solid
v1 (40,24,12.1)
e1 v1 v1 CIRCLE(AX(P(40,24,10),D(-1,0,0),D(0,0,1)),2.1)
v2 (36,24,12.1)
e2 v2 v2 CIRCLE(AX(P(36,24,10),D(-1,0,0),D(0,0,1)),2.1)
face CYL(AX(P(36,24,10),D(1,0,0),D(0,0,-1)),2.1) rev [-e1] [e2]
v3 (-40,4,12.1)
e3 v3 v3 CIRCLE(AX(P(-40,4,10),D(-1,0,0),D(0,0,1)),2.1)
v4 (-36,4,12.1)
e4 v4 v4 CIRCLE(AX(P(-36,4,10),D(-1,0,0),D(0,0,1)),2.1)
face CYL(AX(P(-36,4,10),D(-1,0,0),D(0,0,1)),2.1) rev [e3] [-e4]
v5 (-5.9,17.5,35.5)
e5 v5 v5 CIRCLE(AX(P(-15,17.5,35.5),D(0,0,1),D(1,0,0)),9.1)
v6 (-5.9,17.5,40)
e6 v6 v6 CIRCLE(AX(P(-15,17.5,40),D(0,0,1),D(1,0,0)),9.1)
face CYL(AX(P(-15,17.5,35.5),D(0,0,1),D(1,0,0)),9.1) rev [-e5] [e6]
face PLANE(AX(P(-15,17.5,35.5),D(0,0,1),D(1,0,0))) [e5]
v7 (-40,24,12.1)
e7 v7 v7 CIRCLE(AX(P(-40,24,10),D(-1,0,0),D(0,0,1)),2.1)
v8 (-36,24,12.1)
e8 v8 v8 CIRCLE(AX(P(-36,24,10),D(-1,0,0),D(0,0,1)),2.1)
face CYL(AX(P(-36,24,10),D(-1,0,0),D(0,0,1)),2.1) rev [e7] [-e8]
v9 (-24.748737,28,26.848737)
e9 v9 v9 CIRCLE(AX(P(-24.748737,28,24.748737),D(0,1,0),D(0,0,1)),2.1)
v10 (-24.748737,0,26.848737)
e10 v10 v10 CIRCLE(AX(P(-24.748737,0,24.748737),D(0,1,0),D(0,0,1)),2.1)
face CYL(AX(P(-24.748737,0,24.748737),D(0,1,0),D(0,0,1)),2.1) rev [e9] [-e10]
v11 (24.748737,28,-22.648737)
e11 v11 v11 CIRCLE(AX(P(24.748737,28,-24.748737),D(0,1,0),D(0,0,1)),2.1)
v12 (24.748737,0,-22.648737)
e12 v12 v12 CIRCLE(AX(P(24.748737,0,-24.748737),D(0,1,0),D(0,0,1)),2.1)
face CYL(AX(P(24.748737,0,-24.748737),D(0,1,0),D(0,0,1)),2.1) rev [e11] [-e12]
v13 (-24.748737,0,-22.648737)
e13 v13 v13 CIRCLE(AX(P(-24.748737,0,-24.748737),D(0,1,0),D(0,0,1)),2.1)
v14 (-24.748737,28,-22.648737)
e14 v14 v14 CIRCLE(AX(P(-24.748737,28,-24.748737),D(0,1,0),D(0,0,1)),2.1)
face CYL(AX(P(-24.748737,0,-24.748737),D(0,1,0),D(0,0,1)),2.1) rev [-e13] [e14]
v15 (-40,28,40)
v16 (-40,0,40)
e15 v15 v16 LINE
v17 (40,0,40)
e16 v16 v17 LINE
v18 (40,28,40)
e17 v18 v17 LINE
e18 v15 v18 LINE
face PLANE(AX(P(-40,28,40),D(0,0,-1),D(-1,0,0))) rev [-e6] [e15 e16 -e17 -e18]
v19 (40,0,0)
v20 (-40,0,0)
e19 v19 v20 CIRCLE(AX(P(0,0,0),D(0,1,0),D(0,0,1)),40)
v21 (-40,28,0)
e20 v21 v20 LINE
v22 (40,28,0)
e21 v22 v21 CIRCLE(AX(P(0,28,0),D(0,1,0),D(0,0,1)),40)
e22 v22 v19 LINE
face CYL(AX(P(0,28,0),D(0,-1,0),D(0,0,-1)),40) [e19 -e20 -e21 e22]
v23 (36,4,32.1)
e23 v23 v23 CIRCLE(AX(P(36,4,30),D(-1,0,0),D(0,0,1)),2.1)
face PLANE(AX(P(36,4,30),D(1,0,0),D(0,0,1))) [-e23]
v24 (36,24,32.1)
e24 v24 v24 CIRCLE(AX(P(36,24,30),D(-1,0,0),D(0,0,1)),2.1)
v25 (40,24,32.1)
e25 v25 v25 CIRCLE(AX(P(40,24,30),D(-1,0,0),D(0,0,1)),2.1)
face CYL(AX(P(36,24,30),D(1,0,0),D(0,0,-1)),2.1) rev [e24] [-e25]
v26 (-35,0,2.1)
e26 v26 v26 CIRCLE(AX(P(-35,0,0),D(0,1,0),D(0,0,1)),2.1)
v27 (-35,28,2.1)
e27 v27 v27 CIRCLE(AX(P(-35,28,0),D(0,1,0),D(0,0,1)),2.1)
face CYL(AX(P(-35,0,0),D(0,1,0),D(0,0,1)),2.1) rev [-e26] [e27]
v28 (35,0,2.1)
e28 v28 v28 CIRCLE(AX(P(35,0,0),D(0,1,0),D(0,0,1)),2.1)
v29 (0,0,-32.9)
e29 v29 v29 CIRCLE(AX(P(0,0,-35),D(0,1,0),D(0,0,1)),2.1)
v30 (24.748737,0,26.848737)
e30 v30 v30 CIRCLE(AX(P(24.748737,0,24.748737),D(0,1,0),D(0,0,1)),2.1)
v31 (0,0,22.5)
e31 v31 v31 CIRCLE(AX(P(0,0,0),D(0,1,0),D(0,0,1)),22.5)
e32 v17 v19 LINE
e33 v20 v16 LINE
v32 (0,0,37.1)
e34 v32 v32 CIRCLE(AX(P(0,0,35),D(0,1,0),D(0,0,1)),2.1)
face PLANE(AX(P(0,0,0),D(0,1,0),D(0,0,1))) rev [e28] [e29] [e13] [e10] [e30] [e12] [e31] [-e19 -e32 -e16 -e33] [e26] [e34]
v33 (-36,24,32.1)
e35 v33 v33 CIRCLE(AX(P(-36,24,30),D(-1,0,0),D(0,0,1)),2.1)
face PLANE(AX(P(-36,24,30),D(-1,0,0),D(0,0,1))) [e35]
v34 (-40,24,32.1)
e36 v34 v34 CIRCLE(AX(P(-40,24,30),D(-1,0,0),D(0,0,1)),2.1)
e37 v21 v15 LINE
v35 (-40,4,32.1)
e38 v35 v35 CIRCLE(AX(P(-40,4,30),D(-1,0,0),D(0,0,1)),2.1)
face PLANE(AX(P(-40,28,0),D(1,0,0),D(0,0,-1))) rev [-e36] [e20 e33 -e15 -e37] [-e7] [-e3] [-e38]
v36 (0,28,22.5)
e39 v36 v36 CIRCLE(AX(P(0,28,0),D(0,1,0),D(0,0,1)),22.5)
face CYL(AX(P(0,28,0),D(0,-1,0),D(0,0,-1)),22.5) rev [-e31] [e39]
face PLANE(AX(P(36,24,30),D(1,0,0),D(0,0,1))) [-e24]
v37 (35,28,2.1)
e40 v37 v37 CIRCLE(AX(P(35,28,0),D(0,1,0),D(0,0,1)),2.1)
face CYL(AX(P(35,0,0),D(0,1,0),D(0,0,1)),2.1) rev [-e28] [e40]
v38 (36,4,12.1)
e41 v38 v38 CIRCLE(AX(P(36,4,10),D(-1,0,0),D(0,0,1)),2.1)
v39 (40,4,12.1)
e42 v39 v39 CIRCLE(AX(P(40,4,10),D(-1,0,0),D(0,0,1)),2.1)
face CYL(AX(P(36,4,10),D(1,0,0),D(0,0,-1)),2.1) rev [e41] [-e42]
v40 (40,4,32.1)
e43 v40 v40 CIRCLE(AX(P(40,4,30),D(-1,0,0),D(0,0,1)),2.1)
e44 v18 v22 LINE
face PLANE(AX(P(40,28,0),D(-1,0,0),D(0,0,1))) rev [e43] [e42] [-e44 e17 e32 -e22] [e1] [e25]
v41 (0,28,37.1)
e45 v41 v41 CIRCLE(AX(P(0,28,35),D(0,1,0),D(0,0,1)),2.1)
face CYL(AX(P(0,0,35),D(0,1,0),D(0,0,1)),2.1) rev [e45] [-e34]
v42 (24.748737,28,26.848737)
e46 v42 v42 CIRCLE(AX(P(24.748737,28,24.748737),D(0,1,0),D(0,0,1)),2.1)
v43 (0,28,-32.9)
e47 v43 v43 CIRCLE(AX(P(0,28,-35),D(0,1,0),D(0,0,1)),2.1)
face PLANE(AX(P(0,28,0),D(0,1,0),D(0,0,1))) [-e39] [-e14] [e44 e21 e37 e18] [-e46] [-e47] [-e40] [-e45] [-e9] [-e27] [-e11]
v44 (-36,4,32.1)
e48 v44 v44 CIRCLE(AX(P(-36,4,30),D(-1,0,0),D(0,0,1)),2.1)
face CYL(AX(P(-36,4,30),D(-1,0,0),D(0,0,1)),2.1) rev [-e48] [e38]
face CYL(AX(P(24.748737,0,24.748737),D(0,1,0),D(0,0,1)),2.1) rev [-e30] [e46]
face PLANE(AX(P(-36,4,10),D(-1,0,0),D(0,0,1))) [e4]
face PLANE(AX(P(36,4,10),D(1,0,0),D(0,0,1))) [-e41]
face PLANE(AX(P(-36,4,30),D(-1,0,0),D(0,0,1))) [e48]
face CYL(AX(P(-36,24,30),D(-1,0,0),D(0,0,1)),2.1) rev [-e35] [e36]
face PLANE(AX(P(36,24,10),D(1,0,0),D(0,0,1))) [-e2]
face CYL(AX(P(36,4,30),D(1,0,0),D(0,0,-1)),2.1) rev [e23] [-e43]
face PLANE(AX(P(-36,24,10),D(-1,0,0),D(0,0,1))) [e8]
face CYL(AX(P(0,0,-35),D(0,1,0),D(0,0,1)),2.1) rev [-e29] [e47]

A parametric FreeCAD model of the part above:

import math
import FreeCAD as App
import Part
import Sketcher
from FreeCAD import Vector
Q = App.Units.Quantity

doc = App.newDocument("Part")
body = doc.addObject("PartDesign::Body", "Body")

# Sketch on XZ plane
sketch1 = doc.addObject("Sketcher::SketchObject", "Sketch")
body.addObject(sketch1)
sketch1.AttachmentSupport = (doc.XZ_Plane, [""])
sketch1.MapMode = "FlatFace"
sketch1.addGeometry([
    Part.LineSegment(Vector(-40, 0, 0), Vector(-40, 40, 0)),  # 0
    Part.LineSegment(Vector(-40, 40, 0), Vector(40, 40, 0)),  # 1
    Part.LineSegment(Vector(40, 40, 0), Vector(40, 0, 0)),  # 2
    Part.ArcOfCircle(Part.Circle(Vector(0, 0, 0), Vector(0, 0, 1), 40), math.radians(180), math.radians(360)),  # 3
    Part.Circle(Vector(0, 0, 0), Vector(0, 0, 1), 22),  # 4
], False)
sketch1.addConstraint([
    Sketcher.Constraint("Coincident", 0, 2, 1, 1),
    Sketcher.Constraint("Coincident", 1, 2, 2, 1),
    Sketcher.Constraint("Tangent", 2, 2, 3, 2),
    Sketcher.Constraint("Tangent", 3, 1, 0, 1),
    Sketcher.Constraint("Vertical", 0),
    Sketcher.Constraint("Horizontal", 1),
    Sketcher.Constraint("Vertical", 2),
    Sketcher.Constraint("Coincident", 3, 3, -1, 1),
    Sketcher.Constraint("Coincident", 4, 3, -1, 1),
    Sketcher.Constraint("Diameter", 4, Q("45 mm")),
    Sketcher.Constraint("Radius", 3, Q("40 mm")),
    Sketcher.Constraint("DistanceY", 0, 1, 0, 2, Q("40 mm")),
])
pad1 = doc.addObject("PartDesign::Pad", "Pad")
body.addObject(pad1)
pad1.Profile = sketch1
pad1.Length = 28
pad1.Reversed = True

# Sketch on XZ plane
sketch2 = doc.addObject("Sketcher::SketchObject", "Sketch001")
body.addObject(sketch2)
sketch2.AttachmentSupport = (doc.XZ_Plane, [""])
sketch2.MapMode = "FlatFace"
sketch2.AttachmentOffset = App.Placement(Vector(0, 0, -28), App.Rotation())
sketch2.addGeometry([
    Part.Circle(Vector(0, -35, 0), Vector(0, 0, 1), 2.1),  # 0
    Part.Circle(Vector(24.7, -24.7, 0), Vector(0, 0, 1), 2.1),  # 1
    Part.Circle(Vector(35, 0, 0), Vector(0, 0, 1), 2.1),  # 2
    Part.Circle(Vector(24.7, 24.7, 0), Vector(0, 0, 1), 2.1),  # 3
    Part.Circle(Vector(0, 35, 0), Vector(0, 0, 1), 2.1),  # 4
    Part.Circle(Vector(-24.7, 24.7, 0), Vector(0, 0, 1), 2.1),  # 5
    Part.Circle(Vector(-35, 0, 0), Vector(0, 0, 1), 2.1),  # 6
    Part.Circle(Vector(-24.7, -24.7, 0), Vector(0, 0, 1), 2.1),  # 7
], False)
sketch2.addConstraint([
    Sketcher.Constraint("Equal", 0, 1),
    Sketcher.Constraint("Equal", 1, 2),
    Sketcher.Constraint("Equal", 2, 3),
    Sketcher.Constraint("Equal", 3, 4),
    Sketcher.Constraint("Equal", 4, 5),
    Sketcher.Constraint("Equal", 5, 6),
    Sketcher.Constraint("Equal", 6, 7),
    Sketcher.Constraint("Symmetric", 0, 3, 4, 3, -1, 1),
    Sketcher.Constraint("Symmetric", 1, 3, 5, 3, -1, 1),
    Sketcher.Constraint("Symmetric", 2, 3, 6, 3, -1, 1),
    Sketcher.Constraint("Symmetric", 3, 3, 7, 3, -1, 1),
    Sketcher.Constraint("Symmetric", 3, 3, 5, 3, -2),
    Sketcher.Constraint("PointOnObject", 0, 3, -2),
    Sketcher.Constraint("PointOnObject", 2, 3, -1),
    Sketcher.Constraint("Diameter", 0, Q("4.2 mm")),
    Sketcher.Constraint("DistanceY", 0, 3, -1, 1, Q("35 mm")),
    Sketcher.Constraint("DistanceX", -1, 1, 2, 3, Q("35 mm")),
    Sketcher.Constraint("DistanceX", -1, 1, 1, 3, Q("24.748737 mm")),
    Sketcher.Constraint("DistanceY", 1, 3, -1, 1, Q("24.748737 mm")),
])
pocket1 = doc.addObject("PartDesign::Pocket", "Pocket")
body.addObject(pocket1)
pocket1.Profile = sketch2
pocket1.Type = "ThroughAll"
pocket1.Reversed = True

# Sketch on XY plane
sketch3 = doc.addObject("Sketcher::SketchObject", "Sketch002")
body.addObject(sketch3)
sketch3.AttachmentSupport = (doc.XY_Plane, [""])
sketch3.MapMode = "FlatFace"
sketch3.AttachmentOffset = App.Placement(Vector(0, 0, 40), App.Rotation())
sketch3.addGeometry(Part.Circle(Vector(-15, 18, 0), Vector(0, 0, 1), 9), False)
sketch3.addConstraint([
    Sketcher.Constraint("Diameter", 0, Q("18.2 mm")),
    Sketcher.Constraint("DistanceX", 0, 3, -1, 1, Q("15 mm")),
    Sketcher.Constraint("DistanceY", -1, 1, 0, 3, Q("17.5 mm")),
])
pocket2 = doc.addObject("PartDesign::Pocket", "Pocket001")
body.addObject(pocket2)
pocket2.Profile = sketch3
pocket2.Length = 4.5

# Sketch on YZ plane
sketch4 = doc.addObject("Sketcher::SketchObject", "Sketch003")
body.addObject(sketch4)
sketch4.AttachmentSupport = (doc.YZ_Plane, [""])
sketch4.MapMode = "FlatFace"
sketch4.AttachmentOffset = App.Placement(Vector(0, 0, -40), App.Rotation())
sketch4.addGeometry([
    Part.Circle(Vector(24, 10, 0), Vector(0, 0, 1), 2.1),
    Part.Circle(Vector(24, 30, 0), Vector(0, 0, 1), 2.1),
    Part.Circle(Vector(4, 10, 0), Vector(0, 0, 1), 2.1),
    Part.Circle(Vector(4, 30, 0), Vector(0, 0, 1), 2.1),
], False)
sketch4.addConstraint([
    Sketcher.Constraint("Equal", 0, 1),
    Sketcher.Constraint("Equal", 1, 2),
    Sketcher.Constraint("Equal", 2, 3),
    Sketcher.Constraint("Horizontal", 0, 3, 2, 3),
    Sketcher.Constraint("Horizontal", 1, 3, 3, 3),
    Sketcher.Constraint("Vertical", 0, 3, 1, 3),
    Sketcher.Constraint("Vertical", 2, 3, 3, 3),
    Sketcher.Constraint("Diameter", 0, Q("4.2 mm")),
    Sketcher.Constraint("DistanceX", -1, 1, 0, 3, Q("24 mm")),
    Sketcher.Constraint("DistanceY", -1, 1, 0, 3, Q("10 mm")),
    Sketcher.Constraint("DistanceY", -1, 1, 1, 3, Q("30 mm")),
    Sketcher.Constraint("DistanceX", -1, 1, 2, 3, Q("4 mm")),
])
pocket3 = doc.addObject("PartDesign::Pocket", "Pocket002")
body.addObject(pocket3)
pocket3.Profile = sketch4
pocket3.Length = 4
pocket3.Reversed = True
doc.recompute()

mirrored = doc.addObject("PartDesign::Mirrored", "Mirrored")
body.addObject(mirrored)
mirrored.Originals = [pocket3]
mirrored.MirrorPlane = (doc.YZ_Plane, [""])
body.Tip = mirrored

doc.recompute()
